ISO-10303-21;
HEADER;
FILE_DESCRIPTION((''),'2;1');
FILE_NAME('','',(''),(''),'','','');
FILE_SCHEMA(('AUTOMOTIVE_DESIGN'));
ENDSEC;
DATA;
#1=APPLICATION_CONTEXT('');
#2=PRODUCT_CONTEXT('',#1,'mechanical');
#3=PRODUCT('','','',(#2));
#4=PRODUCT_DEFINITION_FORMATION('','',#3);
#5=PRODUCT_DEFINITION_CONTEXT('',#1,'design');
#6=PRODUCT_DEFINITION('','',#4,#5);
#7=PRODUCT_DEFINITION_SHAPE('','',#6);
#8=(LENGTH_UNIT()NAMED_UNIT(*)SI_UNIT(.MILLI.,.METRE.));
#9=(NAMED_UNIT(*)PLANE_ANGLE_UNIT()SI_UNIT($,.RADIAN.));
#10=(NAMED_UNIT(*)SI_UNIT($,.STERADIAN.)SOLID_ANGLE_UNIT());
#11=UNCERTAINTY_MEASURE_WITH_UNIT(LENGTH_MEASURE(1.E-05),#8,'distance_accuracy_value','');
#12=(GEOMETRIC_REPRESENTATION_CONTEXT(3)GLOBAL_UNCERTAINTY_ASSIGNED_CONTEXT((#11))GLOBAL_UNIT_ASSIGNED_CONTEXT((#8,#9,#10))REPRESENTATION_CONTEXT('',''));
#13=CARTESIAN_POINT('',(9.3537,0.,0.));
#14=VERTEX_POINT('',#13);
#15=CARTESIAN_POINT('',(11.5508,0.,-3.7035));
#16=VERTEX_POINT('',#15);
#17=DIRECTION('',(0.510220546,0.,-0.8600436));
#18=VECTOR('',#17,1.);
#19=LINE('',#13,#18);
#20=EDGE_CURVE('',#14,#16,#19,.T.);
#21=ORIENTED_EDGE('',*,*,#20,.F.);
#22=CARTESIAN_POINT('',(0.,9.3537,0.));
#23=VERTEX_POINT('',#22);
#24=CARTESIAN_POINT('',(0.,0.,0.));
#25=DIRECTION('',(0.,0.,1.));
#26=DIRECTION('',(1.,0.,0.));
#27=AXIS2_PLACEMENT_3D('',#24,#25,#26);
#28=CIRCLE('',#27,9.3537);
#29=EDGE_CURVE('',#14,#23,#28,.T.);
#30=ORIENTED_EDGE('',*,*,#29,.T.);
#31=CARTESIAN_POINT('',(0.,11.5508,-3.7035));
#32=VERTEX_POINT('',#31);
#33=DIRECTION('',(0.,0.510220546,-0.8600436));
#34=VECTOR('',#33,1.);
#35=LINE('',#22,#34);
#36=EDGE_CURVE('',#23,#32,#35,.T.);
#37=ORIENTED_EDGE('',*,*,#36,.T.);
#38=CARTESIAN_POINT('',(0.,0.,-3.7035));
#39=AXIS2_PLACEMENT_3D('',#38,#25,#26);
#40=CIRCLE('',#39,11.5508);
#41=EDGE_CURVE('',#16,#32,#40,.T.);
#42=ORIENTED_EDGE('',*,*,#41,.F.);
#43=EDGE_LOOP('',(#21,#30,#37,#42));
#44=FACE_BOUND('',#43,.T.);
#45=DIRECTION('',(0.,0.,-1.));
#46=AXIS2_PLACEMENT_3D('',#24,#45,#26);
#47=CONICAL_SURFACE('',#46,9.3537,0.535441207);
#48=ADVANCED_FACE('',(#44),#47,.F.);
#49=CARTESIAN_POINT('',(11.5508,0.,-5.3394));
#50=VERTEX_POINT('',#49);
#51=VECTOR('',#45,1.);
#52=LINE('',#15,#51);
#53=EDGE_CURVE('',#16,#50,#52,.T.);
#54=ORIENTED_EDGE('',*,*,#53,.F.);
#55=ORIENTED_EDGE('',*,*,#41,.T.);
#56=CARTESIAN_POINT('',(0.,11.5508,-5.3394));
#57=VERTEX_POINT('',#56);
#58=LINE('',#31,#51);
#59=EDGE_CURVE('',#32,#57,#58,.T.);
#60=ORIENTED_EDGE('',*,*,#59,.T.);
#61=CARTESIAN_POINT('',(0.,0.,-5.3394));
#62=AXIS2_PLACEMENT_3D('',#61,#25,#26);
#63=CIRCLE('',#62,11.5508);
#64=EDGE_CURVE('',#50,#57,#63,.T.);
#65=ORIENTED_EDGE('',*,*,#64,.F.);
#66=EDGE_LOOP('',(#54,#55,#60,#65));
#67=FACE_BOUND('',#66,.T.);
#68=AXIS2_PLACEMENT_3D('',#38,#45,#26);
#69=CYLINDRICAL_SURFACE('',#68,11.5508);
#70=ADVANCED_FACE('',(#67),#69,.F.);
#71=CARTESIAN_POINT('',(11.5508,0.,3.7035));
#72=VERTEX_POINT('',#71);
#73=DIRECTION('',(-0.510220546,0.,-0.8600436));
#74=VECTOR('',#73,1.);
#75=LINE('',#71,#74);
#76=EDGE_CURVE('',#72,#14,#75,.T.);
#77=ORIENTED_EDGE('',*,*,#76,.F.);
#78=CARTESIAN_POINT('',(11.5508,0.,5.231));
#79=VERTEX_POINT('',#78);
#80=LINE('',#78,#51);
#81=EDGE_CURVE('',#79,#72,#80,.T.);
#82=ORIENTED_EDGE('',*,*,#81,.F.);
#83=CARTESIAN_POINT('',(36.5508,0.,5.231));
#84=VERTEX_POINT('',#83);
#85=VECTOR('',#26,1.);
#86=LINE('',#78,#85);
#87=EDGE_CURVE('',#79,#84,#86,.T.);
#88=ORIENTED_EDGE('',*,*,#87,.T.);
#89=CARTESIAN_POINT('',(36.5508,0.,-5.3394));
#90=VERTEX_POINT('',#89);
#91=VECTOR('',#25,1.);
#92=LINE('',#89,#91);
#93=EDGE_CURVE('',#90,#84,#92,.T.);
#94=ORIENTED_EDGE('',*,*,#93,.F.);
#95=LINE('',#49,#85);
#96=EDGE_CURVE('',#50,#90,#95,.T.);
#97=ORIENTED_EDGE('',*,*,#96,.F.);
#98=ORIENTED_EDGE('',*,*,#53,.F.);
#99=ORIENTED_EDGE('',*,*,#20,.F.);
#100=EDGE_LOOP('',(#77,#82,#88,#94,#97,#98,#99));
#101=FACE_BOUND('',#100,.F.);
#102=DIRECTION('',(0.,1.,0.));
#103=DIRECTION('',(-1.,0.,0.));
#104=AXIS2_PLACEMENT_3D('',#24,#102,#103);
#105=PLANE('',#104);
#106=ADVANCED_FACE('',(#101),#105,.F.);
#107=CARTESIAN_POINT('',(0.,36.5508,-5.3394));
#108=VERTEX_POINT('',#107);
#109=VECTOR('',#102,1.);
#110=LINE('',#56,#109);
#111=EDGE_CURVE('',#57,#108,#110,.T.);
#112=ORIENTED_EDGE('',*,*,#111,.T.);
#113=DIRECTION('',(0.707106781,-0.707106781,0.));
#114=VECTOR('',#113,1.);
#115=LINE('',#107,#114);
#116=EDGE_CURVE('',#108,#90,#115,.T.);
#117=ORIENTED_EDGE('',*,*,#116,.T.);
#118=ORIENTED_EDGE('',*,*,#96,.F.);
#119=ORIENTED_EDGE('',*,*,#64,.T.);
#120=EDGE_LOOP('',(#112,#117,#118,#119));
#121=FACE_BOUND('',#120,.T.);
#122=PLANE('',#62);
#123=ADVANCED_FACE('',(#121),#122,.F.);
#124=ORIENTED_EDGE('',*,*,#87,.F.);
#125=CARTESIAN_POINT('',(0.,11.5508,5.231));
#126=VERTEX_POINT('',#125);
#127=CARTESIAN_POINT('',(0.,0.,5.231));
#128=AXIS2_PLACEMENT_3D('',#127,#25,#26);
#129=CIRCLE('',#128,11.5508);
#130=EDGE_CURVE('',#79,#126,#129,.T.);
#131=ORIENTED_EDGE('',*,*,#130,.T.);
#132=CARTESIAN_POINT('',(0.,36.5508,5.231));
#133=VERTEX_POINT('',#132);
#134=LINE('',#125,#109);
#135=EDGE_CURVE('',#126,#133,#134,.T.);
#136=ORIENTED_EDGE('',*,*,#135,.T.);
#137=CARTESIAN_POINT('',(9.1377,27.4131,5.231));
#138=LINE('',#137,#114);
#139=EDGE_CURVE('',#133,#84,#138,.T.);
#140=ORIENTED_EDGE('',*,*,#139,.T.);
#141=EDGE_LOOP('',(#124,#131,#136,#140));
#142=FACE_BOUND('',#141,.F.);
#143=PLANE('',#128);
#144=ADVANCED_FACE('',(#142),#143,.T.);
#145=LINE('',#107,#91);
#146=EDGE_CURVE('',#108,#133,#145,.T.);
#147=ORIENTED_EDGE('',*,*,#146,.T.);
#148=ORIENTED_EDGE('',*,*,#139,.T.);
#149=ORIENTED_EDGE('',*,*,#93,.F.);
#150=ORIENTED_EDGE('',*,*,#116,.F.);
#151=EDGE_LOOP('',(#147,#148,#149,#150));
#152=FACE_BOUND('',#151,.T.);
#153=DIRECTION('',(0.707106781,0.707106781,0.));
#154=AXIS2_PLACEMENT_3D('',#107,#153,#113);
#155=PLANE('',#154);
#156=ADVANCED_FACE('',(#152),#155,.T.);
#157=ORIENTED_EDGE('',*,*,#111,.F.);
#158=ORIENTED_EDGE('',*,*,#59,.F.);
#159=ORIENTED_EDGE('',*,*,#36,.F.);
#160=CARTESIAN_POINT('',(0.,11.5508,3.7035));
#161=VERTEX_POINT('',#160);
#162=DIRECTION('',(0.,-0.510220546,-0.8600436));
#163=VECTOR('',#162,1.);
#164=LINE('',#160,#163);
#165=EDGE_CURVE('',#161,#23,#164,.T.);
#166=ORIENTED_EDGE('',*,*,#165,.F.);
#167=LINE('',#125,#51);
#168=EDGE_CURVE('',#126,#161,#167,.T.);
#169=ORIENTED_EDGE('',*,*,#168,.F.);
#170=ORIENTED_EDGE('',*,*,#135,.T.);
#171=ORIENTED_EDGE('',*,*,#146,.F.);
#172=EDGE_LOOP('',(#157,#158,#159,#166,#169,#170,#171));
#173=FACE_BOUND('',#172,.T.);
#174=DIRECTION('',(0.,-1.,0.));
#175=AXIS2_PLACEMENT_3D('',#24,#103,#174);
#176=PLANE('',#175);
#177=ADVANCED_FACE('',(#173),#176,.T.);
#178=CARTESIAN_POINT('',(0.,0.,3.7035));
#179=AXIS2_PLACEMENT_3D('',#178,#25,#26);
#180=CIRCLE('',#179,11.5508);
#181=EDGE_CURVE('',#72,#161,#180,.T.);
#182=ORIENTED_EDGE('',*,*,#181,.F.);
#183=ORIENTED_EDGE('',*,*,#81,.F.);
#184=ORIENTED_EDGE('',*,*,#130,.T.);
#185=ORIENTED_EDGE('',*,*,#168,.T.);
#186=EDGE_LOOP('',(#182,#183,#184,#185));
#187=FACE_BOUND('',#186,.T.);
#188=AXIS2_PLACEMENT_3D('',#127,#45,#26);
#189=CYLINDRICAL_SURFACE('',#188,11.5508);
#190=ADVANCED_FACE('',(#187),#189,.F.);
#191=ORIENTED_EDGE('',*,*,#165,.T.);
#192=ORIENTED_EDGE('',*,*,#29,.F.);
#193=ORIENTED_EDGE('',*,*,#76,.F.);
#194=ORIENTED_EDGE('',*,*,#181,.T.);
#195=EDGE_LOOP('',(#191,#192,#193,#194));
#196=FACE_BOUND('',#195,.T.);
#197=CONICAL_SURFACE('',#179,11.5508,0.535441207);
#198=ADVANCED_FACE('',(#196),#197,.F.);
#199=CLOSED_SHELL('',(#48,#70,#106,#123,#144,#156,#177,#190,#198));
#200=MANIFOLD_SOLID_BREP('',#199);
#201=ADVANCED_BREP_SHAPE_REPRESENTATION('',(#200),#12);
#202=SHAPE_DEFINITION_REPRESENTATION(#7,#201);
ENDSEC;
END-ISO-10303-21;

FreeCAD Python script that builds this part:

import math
import FreeCAD as App
import Part
import Sketcher
from FreeCAD import Vector
Q = App.Units.Quantity


def add_polygon(sketch, points):
    """Adds a closed chain of lines whose ends are joined by coincident constraints."""
    first, n = sketch.GeometryCount, len(points)
    for a, b in zip(points, points[1:] + points[:1]):
        sketch.addGeometry(Part.LineSegment(App.Vector(*a, 0), App.Vector(*b, 0)), False)
    for i in range(n):
        sketch.addConstraint(Sketcher.Constraint("Coincident", first + i, 2, first + (i + 1) % n, 1))

doc = App.newDocument("Part")
params = doc.addObject("Spreadsheet::Sheet", "Params")
for row, (alias, value) in enumerate([
    ("sketch1_width", "25 mm"),
    ("revolution_angle", "90 deg"),
], start=1):
    params.set(f"A{row}", alias)
    params.set(f"B{row}", "=" + value)
    params.setAlias(f"B{row}", alias)

body = doc.addObject("PartDesign::Body", "Body")

# Sketch on XZ plane
sketch1 = doc.addObject("Sketcher::SketchObject", "Sketch")
body.addObject(sketch1)
sketch1.AttachmentSupport = (doc.XZ_Plane, [""])
sketch1.MapMode = "FlatFace"
add_polygon(sketch1, [(11.6, 3.7), (11.6, 5.2), (36.6, 5.2), (36.6, -5.3), (11.6, -5.3), (11.6, -3.7), (9.4, 0)])  # lines 0-6
sketch1.addConstraint([
    Sketcher.Constraint("Vertical", 0),
    Sketcher.Constraint("Horizontal", 1),
    Sketcher.Constraint("Vertical", 2),
    Sketcher.Constraint("Horizontal", 3),
    Sketcher.Constraint("Vertical", 4),
    Sketcher.Constraint("Symmetric", 4, 2, 6, 2, -1),
    Sketcher.Constraint("PointOnObject", 5, 2, -1),
    Sketcher.Constraint("DistanceX", 1, 1, 1, 2, Q("25 mm")),
    Sketcher.Constraint("DistanceY", 4, 1, 4, 2, Q("1.636 mm")),
    Sketcher.Constraint("DistanceY", 0, 1, 0, 2, Q("1.5275 mm")),
    Sketcher.Constraint("DistanceY", 2, 2, 2, 1, Q("10.5704 mm")),
    Sketcher.Constraint("DistanceX", 5, 2, 4, 2, Q("2.197 mm")),
    Sketcher.Constraint("DistanceX", -1, 1, 0, 2, Q("11.5508 mm")),
])
sketch1.setExpression("Constraints[14]", "Params.sketch1_width")
revolution = doc.addObject("PartDesign::Revolution", "Revolution")
body.addObject(revolution)
revolution.Profile = sketch1
revolution.ReferenceAxis = (sketch1, ["V_Axis"])
revolution.setExpression("Angle", "Params.revolution_angle")

# Sketch on XY plane
sketch2 = doc.addObject("Sketcher::SketchObject", "Sketch001")
body.addObject(sketch2)
sketch2.AttachmentSupport = (doc.XY_Plane, [""])
sketch2.MapMode = "FlatFace"
sketch2.AttachmentOffset = App.Placement(Vector(0, 0, -5.3394), App.Rotation())
sketch2.addGeometry([
    Part.LineSegment(Vector(37, 0, 0), Vector(0, 37, 0)),
    Part.ArcOfCircle(Part.Circle(Vector(0, 0, 0), Vector(0, 0, 1), 37), math.radians(0), math.radians(90)),
], False)
sketch2.addConstraint([
    Sketcher.Constraint("Coincident", 0, 1, 1, 1),
    Sketcher.Constraint("Coincident", 1, 2, 0, 2),
    Sketcher.Constraint("Coincident", 1, 3, -1, 1),
    Sketcher.Constraint("PointOnObject", 0, 1, -1),
    Sketcher.Constraint("PointOnObject", 1, 2, -2),
    Sketcher.Constraint("Radius", 1, Q("36.5508 mm")),
])
pocket1 = doc.addObject("PartDesign::Pocket", "Pocket")
body.addObject(pocket1)
pocket1.Profile = sketch2
pocket1.Type = "ThroughAll"
pocket1.Reversed = True

doc.recompute()
